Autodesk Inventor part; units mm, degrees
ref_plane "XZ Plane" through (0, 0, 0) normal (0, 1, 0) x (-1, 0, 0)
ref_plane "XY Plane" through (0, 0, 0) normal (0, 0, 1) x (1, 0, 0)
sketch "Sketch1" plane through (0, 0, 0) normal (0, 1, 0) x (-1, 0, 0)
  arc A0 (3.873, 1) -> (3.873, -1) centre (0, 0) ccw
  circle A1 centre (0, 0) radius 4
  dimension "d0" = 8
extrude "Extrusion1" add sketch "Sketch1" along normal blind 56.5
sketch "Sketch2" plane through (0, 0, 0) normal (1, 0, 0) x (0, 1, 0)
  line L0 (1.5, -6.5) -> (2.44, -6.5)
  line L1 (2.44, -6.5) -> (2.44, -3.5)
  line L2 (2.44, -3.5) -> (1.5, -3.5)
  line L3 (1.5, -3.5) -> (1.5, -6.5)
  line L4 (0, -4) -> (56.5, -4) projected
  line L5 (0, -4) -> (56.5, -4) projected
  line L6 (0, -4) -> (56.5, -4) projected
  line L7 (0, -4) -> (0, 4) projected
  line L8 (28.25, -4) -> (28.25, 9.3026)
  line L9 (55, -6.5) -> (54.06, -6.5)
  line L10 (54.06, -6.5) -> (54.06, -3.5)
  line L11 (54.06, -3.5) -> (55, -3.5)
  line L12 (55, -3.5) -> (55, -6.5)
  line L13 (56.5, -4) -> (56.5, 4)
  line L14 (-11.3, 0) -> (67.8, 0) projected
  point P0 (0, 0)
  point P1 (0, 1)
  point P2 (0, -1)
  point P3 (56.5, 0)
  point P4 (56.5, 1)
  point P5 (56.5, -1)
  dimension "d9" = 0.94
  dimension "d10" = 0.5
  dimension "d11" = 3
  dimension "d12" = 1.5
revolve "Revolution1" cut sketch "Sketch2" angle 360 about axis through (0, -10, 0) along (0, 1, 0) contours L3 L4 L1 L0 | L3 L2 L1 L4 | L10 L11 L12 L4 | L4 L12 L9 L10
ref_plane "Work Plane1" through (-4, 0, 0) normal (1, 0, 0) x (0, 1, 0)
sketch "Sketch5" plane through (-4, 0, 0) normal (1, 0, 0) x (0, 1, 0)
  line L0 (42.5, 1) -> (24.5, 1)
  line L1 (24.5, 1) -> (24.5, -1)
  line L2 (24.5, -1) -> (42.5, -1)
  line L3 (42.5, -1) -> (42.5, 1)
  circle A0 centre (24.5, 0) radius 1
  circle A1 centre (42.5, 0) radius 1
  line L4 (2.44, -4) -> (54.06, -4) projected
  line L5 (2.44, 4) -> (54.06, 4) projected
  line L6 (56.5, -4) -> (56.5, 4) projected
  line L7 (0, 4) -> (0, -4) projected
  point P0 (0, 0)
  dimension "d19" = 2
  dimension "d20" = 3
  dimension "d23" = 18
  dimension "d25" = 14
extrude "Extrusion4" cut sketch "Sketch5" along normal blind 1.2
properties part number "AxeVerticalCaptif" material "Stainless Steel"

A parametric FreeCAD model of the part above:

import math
import FreeCAD as App
import Part
import Sketcher
from FreeCAD import Vector
Q = App.Units.Quantity

doc = App.newDocument("Part")
body = doc.addObject("PartDesign::Body", "Body")

# Sketch on XZ plane
sketch1 = body.newObject("Sketcher::SketchObject", "Sketch")
sketch1.AttachmentSupport = (doc.getObject("XZ_Plane"), [""])
sketch1.MapMode = "FlatFace"
sketch1.addGeometry(Part.Circle(Vector(0, 0, 0), Vector(0, 0, 1), 4), False)
sketch1.addConstraint(Sketcher.Constraint("Coincident", 0, 3, -1, 1))
sketch1.addConstraint(Sketcher.Constraint("Diameter", 0, Q("8 mm")))
pad1 = body.newObject("PartDesign::Pad", "Pad")
pad1.Profile = sketch1
pad1.Length = 56.5
pad1.Reversed = True

# Sketch on YZ plane
sketch2 = body.newObject("Sketcher::SketchObject", "Sketch001")
sketch2.AttachmentSupport = (doc.getObject("YZ_Plane"), [""])
sketch2.MapMode = "FlatFace"
sketch2.addGeometry(Part.LineSegment(Vector(1.5, -6.5, 0), Vector(2.4, -6.5, 0)), False)
sketch2.addGeometry(Part.LineSegment(Vector(2.4, -6.5, 0), Vector(2.4, -3.5, 0)), False)
sketch2.addGeometry(Part.LineSegment(Vector(2.4, -3.5, 0), Vector(1.5, -3.5, 0)), False)
sketch2.addGeometry(Part.LineSegment(Vector(1.5, -3.5, 0), Vector(1.5, -6.5, 0)), False)
sketch2.addGeometry(Part.LineSegment(Vector(54.1, -3.5, 0), Vector(54.1, -6.5, 0)), False)
sketch2.addGeometry(Part.LineSegment(Vector(54.1, -6.5, 0), Vector(55, -6.5, 0)), False)
sketch2.addGeometry(Part.LineSegment(Vector(55, -6.5, 0), Vector(55, -3.5, 0)), False)
sketch2.addGeometry(Part.LineSegment(Vector(55, -3.5, 0), Vector(54.1, -3.5, 0)), False)
sketch2.addConstraint(Sketcher.Constraint("Coincident", 0, 2, 1, 1))
sketch2.addConstraint(Sketcher.Constraint("Coincident", 1, 2, 2, 1))
sketch2.addConstraint(Sketcher.Constraint("Coincident", 2, 2, 3, 1))
sketch2.addConstraint(Sketcher.Constraint("Coincident", 3, 2, 0, 1))
sketch2.addConstraint(Sketcher.Constraint("Coincident", 4, 2, 5, 1))
sketch2.addConstraint(Sketcher.Constraint("Coincident", 5, 2, 6, 1))
sketch2.addConstraint(Sketcher.Constraint("Coincident", 6, 2, 7, 1))
sketch2.addConstraint(Sketcher.Constraint("Coincident", 7, 2, 4, 1))
sketch2.addConstraint(Sketcher.Constraint("Horizontal", 0))
sketch2.addConstraint(Sketcher.Constraint("Vertical", 1))
sketch2.addConstraint(Sketcher.Constraint("Horizontal", 2))
sketch2.addConstraint(Sketcher.Constraint("Vertical", 3))
sketch2.addConstraint(Sketcher.Constraint("Vertical", 4))
sketch2.addConstraint(Sketcher.Constraint("Horizontal", 5))
sketch2.addConstraint(Sketcher.Constraint("Vertical", 6))
sketch2.addConstraint(Sketcher.Constraint("Horizontal", 7))
sketch2.addConstraint(Sketcher.Constraint("Horizontal", 3, 2, 4, 2))
sketch2.addConstraint(Sketcher.Constraint("Horizontal", 2, 2, 6, 2))
sketch2.addConstraint(Sketcher.Constraint("Equal", 2, 5))
sketch2.addConstraint(Sketcher.Constraint("DistanceY", 1, 1, 1, 2, Q("3 mm")))
sketch2.addConstraint(Sketcher.Constraint("DistanceX", 0, 1, 0, 2, Q("0.94 mm")))
sketch2.addConstraint(Sketcher.Constraint("DistanceX", -1, 1, 2, 2, Q("1.5 mm")))
sketch2.addConstraint(Sketcher.Constraint("DistanceX", -1, 1, 5, 2, Q("55 mm")))
sketch2.addConstraint(Sketcher.Constraint("DistanceY", 0, 2, -1, 1, Q("6.5 mm")))
groove = body.newObject("PartDesign::Groove", "Groove")
groove.Profile = sketch2
groove.ReferenceAxis = (sketch2, ["H_Axis"])
groove.Angle = 360

# Sketch on YZ plane
sketch3 = body.newObject("Sketcher::SketchObject", "Sketch002")
sketch3.AttachmentSupport = (doc.getObject("YZ_Plane"), [""])
sketch3.MapMode = "FlatFace"
sketch3.AttachmentOffset = App.Placement(Vector(0, 0, -4), App.Rotation())
sketch3.addGeometry(Part.LineSegment(Vector(24.5, -1, 0), Vector(42.5, -1, 0)), False)
sketch3.addGeometry(Part.ArcOfCircle(Part.Circle(Vector(42.5, 0, 0), Vector(0, 0, 1), 1), math.radians(-90), math.radians(90)), False)
sketch3.addGeometry(Part.LineSegment(Vector(42.5, 1, 0), Vector(24.5, 1, 0)), False)
sketch3.addGeometry(Part.ArcOfCircle(Part.Circle(Vector(24.5, 0, 0), Vector(0, 0, 1), 1), math.radians(90), math.radians(270)), False)
sketch3.addConstraint(Sketcher.Constraint("Tangent", 0, 2, 1, 1))
sketch3.addConstraint(Sketcher.Constraint("Tangent", 1, 2, 2, 1))
sketch3.addConstraint(Sketcher.Constraint("Tangent", 2, 2, 3, 1))
sketch3.addConstraint(Sketcher.Constraint("Tangent", 3, 2, 0, 1))
sketch3.addConstraint(Sketcher.Constraint("Horizontal", 0))
sketch3.addConstraint(Sketcher.Constraint("Horizontal", 2))
sketch3.addConstraint(Sketcher.Constraint("PointOnObject", 1, 3, -1))
sketch3.addConstraint(Sketcher.Constraint("Radius", 1, Q("1 mm")))
sketch3.addConstraint(Sketcher.Constraint("DistanceX", 0, 1, 0, 2, Q("18 mm")))
sketch3.addConstraint(Sketcher.Constraint("DistanceX", -1, 1, 1, 3, Q("42.5 mm")))
pocket1 = body.newObject("PartDesign::Pocket", "Pocket")
pocket1.Profile = sketch3
pocket1.Length = 1.2
pocket1.Reversed = True

doc.recompute()
